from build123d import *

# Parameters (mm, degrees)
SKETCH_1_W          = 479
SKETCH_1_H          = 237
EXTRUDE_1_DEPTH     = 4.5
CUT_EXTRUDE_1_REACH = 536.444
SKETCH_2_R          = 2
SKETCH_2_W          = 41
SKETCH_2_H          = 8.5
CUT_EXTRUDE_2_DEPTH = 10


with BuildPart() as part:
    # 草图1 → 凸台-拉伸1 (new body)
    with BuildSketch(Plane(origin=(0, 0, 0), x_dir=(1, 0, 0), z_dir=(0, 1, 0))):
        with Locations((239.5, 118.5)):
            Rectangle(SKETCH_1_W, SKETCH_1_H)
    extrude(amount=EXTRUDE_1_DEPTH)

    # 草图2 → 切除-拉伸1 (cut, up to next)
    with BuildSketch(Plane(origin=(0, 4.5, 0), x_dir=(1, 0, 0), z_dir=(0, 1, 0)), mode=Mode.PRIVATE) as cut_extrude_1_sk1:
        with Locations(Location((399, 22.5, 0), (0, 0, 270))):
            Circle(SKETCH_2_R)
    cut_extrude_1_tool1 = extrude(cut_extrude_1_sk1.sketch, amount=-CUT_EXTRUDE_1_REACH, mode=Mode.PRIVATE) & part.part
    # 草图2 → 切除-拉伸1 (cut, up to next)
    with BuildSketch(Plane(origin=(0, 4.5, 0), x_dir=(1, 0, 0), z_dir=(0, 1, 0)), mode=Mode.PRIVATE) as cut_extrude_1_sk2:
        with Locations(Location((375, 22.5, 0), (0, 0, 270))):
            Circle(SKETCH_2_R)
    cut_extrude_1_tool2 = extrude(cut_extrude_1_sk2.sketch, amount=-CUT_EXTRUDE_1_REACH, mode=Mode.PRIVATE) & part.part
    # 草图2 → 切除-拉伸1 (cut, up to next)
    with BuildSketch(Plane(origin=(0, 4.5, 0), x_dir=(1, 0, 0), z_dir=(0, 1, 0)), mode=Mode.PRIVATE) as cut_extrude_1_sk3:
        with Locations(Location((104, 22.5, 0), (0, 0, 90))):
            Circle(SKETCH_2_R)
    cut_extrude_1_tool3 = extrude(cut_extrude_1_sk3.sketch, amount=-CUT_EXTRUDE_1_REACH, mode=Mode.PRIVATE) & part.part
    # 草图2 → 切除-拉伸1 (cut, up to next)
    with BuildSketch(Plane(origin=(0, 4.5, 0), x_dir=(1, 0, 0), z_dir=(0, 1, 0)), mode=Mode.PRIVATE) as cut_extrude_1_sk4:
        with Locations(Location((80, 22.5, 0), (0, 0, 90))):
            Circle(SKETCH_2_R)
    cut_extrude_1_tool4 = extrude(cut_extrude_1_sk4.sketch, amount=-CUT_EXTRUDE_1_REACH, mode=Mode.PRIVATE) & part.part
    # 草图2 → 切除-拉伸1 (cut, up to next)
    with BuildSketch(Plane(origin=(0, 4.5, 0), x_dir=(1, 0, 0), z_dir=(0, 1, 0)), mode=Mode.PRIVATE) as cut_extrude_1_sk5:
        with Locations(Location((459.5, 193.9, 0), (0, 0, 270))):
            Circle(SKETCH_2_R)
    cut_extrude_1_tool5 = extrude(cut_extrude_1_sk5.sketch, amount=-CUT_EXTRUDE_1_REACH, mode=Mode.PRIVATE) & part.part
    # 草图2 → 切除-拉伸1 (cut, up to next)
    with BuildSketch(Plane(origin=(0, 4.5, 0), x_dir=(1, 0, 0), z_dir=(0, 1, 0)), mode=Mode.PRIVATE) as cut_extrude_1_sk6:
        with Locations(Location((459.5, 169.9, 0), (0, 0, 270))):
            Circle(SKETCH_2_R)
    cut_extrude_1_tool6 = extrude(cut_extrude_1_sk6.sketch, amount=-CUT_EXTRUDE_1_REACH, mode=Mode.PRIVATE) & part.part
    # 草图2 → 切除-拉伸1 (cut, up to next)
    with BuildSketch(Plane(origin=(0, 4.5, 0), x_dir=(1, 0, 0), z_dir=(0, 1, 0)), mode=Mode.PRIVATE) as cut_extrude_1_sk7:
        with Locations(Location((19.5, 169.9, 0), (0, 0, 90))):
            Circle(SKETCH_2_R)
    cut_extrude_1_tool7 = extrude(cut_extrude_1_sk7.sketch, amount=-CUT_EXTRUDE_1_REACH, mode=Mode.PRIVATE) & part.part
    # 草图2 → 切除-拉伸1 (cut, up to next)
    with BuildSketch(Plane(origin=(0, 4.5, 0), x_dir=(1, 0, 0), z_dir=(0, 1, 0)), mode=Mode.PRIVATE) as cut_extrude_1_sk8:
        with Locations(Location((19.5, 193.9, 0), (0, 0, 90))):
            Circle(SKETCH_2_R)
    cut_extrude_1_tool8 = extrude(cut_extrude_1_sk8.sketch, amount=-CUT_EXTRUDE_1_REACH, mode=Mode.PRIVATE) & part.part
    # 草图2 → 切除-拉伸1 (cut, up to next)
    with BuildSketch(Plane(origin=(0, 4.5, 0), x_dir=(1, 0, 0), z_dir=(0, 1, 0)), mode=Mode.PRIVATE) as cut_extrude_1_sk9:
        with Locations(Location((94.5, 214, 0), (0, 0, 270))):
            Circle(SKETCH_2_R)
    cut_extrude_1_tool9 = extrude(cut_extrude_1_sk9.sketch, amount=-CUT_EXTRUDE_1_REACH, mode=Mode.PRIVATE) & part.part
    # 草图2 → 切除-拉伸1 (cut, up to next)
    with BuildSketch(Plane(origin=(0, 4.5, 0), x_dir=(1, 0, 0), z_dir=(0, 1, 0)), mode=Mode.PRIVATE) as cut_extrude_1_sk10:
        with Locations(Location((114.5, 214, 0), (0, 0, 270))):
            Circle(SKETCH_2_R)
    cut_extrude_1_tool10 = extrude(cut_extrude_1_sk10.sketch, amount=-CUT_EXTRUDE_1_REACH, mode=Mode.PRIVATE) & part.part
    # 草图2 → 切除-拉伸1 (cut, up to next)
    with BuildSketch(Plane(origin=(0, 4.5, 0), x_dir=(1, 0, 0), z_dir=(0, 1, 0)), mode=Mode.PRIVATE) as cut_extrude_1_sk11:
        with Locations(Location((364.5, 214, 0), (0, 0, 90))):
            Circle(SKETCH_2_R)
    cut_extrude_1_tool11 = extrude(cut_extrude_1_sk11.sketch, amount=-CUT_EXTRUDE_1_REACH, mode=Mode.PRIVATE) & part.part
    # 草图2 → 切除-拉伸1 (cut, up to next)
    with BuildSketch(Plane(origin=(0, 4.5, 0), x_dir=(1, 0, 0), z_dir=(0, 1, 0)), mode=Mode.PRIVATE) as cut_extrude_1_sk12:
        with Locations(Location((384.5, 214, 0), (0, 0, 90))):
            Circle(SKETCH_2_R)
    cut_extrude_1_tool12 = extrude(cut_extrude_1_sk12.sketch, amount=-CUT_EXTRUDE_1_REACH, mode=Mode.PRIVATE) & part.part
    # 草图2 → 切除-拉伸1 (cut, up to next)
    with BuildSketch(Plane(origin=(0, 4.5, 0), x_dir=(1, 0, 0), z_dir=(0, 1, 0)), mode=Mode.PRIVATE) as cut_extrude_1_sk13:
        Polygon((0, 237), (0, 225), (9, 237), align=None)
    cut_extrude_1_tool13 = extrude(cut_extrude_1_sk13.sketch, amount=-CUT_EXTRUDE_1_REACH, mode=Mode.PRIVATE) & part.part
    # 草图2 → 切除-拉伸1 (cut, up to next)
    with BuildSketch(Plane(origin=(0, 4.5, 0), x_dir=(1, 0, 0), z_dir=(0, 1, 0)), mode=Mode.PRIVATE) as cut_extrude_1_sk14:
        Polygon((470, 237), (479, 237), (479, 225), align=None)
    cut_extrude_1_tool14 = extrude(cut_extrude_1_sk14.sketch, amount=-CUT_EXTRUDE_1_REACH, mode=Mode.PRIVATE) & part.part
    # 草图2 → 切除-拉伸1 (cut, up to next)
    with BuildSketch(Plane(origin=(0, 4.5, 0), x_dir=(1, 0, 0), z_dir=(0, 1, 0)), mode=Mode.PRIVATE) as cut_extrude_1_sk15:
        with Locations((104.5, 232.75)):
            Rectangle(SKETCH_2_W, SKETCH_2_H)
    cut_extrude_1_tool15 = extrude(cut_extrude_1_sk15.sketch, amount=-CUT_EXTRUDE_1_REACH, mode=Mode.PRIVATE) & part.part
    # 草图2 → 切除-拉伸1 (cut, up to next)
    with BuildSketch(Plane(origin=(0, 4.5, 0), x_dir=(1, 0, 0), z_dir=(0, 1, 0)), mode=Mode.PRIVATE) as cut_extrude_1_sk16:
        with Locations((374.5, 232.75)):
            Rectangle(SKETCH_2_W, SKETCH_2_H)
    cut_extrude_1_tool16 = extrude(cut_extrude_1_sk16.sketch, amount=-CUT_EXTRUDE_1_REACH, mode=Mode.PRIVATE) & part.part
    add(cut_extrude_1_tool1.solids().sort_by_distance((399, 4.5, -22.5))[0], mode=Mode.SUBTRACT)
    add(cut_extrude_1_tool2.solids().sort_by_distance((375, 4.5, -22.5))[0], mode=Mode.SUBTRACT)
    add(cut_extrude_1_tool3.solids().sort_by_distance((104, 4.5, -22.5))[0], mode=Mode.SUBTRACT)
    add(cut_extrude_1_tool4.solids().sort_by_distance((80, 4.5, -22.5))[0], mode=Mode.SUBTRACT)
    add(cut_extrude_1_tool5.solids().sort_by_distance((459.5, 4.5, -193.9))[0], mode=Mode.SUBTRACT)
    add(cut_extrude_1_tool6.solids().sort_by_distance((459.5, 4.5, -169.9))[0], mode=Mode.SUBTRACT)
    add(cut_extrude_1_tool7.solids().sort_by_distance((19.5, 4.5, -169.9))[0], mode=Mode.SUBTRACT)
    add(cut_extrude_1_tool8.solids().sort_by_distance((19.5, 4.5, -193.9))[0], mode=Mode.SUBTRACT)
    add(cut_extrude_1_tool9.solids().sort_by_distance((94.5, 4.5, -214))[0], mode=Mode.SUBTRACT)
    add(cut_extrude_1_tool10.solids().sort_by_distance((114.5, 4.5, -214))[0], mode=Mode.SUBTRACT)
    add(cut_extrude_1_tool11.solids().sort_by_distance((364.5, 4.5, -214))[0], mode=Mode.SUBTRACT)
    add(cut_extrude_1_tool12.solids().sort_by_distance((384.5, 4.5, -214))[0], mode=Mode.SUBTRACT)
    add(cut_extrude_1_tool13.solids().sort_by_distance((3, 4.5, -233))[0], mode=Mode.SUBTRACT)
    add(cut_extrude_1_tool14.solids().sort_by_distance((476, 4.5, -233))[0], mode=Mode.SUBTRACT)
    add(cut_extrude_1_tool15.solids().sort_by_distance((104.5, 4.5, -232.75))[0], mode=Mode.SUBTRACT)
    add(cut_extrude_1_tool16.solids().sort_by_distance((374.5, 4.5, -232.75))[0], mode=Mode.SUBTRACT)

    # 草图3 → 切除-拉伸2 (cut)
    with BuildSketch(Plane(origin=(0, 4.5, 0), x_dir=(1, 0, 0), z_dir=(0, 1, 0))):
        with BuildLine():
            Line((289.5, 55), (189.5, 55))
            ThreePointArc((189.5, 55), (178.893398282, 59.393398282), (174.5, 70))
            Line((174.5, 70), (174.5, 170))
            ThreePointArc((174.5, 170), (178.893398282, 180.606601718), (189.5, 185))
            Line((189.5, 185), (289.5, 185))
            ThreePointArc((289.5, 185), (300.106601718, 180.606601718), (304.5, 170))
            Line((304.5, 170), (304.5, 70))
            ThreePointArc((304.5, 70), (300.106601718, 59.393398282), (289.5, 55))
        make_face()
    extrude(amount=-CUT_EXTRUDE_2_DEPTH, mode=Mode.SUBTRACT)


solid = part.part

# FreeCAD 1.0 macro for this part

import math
import FreeCAD as App
import Part
import Sketcher


def add_polygon(sketch, points):
    """Adds a closed chain of lines whose ends are joined by coincident constraints."""
    first, n = sketch.GeometryCount, len(points)
    for a, b in zip(points, points[1:] + points[:1]):
        sketch.addGeometry(Part.LineSegment(App.Vector(*a, 0), App.Vector(*b, 0)), False)
    for i in range(n):
        sketch.addConstraint(Sketcher.Constraint("Coincident", first + i, 2, first + (i + 1) % n, 1))

doc = App.newDocument("Part")
body = doc.addObject("PartDesign::Body", "Body")

sketch1 = body.newObject("Sketcher::SketchObject", "Sketch")
sketch1.AttachmentSupport = (doc.getObject("XZ_Plane"), [""])
sketch1.MapMode = "FlatFace"
add_polygon(sketch1, [(0, -237), (0, 0), (479, 0), (479, -237)])
sketch1.addConstraint(Sketcher.Constraint("Vertical", 0))
sketch1.addConstraint(Sketcher.Constraint("Horizontal", 1))
sketch1.addConstraint(Sketcher.Constraint("Vertical", 2))
sketch1.addConstraint(Sketcher.Constraint("Horizontal", 3))
sketch1.addConstraint(Sketcher.Constraint("Coincident", 0, 2, -1, 1))
sketch1.addConstraint(Sketcher.Constraint("DistanceX", 1, 1, 1, 2, 479.0))
sketch1.addConstraint(Sketcher.Constraint("DistanceY", 0, 1, 0, 2, 237.0))
pad1 = body.newObject("PartDesign::Pad", "Pad")
pad1.Profile = sketch1
pad1.Length = 4.5
pad1.Reversed = True

sketch2 = body.newObject("Sketcher::SketchObject", "Sketch001")
sketch2.AttachmentSupport = (doc.getObject("XZ_Plane"), [""])
sketch2.MapMode = "FlatFace"
sketch2.AttachmentOffset = App.Placement(App.Vector(0, 0, -4.5), App.Rotation())
sketch2.addGeometry(Part.Circle(App.Vector(399, -22.5, 0), App.Vector(0, 0, 1), 2), False)
sketch2.addConstraint(Sketcher.Constraint("Diameter", 0, 4.0))
sketch2.addConstraint(Sketcher.Constraint("DistanceX", -1, 1, 0, 3, 399.0))
sketch2.addConstraint(Sketcher.Constraint("DistanceY", 0, 3, -1, 1, 22.5))
pocket1 = body.newObject("PartDesign::Pocket", "Pocket")
pocket1.Profile = sketch2
pocket1.Type = "UpToFirst"
pocket1.Reversed = True

sketch3 = body.newObject("Sketcher::SketchObject", "Sketch002")
sketch3.AttachmentSupport = (doc.getObject("XZ_Plane"), [""])
sketch3.MapMode = "FlatFace"
sketch3.AttachmentOffset = App.Placement(App.Vector(0, 0, -4.5), App.Rotation())
sketch3.addGeometry(Part.Circle(App.Vector(375, -22.5, 0), App.Vector(0, 0, 1), 2), False)
sketch3.addConstraint(Sketcher.Constraint("Diameter", 0, 4.0))
sketch3.addConstraint(Sketcher.Constraint("DistanceX", -1, 1, 0, 3, 375.0))
sketch3.addConstraint(Sketcher.Constraint("DistanceY", 0, 3, -1, 1, 22.5))
pocket2 = body.newObject("PartDesign::Pocket", "Pocket001")
pocket2.Profile = sketch3
pocket2.Type = "UpToFirst"
pocket2.Reversed = True

sketch4 = body.newObject("Sketcher::SketchObject", "Sketch003")
sketch4.AttachmentSupport = (doc.getObject("XZ_Plane"), [""])
sketch4.MapMode = "FlatFace"
sketch4.AttachmentOffset = App.Placement(App.Vector(0, 0, -4.5), App.Rotation())
sketch4.addGeometry(Part.Circle(App.Vector(104, -22.5, 0), App.Vector(0, 0, 1), 2), False)
sketch4.addConstraint(Sketcher.Constraint("Diameter", 0, 4.0))
sketch4.addConstraint(Sketcher.Constraint("DistanceX", -1, 1, 0, 3, 104.0))
sketch4.addConstraint(Sketcher.Constraint("DistanceY", 0, 3, -1, 1, 22.5))
pocket3 = body.newObject("PartDesign::Pocket", "Pocket002")
pocket3.Profile = sketch4
pocket3.Type = "UpToFirst"
pocket3.Reversed = True

sketch5 = body.newObject("Sketcher::SketchObject", "Sketch004")
sketch5.AttachmentSupport = (doc.getObject("XZ_Plane"), [""])
sketch5.MapMode = "FlatFace"
sketch5.AttachmentOffset = App.Placement(App.Vector(0, 0, -4.5), App.Rotation())
sketch5.addGeometry(Part.Circle(App.Vector(80, -22.5, 0), App.Vector(0, 0, 1), 2), False)
sketch5.addConstraint(Sketcher.Constraint("Diameter", 0, 4.0))
sketch5.addConstraint(Sketcher.Constraint("DistanceX", -1, 1, 0, 3, 80.0))
sketch5.addConstraint(Sketcher.Constraint("DistanceY", 0, 3, -1, 1, 22.5))
pocket4 = body.newObject("PartDesign::Pocket", "Pocket003")
pocket4.Profile = sketch5
pocket4.Type = "UpToFirst"
pocket4.Reversed = True

sketch6 = body.newObject("Sketcher::SketchObject", "Sketch005")
sketch6.AttachmentSupport = (doc.getObject("XZ_Plane"), [""])
sketch6.MapMode = "FlatFace"
sketch6.AttachmentOffset = App.Placement(App.Vector(0, 0, -4.5), App.Rotation())
sketch6.addGeometry(Part.Circle(App.Vector(459.5, -193.9, 0), App.Vector(0, 0, 1), 2), False)
sketch6.addConstraint(Sketcher.Constraint("Diameter", 0, 4.0))
sketch6.addConstraint(Sketcher.Constraint("DistanceX", -1, 1, 0, 3, 459.5))
sketch6.addConstraint(Sketcher.Constraint("DistanceY", 0, 3, -1, 1, 193.9))
pocket5 = body.newObject("PartDesign::Pocket", "Pocket004")
pocket5.Profile = sketch6
pocket5.Type = "UpToFirst"
pocket5.Reversed = True

sketch7 = body.newObject("Sketcher::SketchObject", "Sketch006")
sketch7.AttachmentSupport = (doc.getObject("XZ_Plane"), [""])
sketch7.MapMode = "FlatFace"
sketch7.AttachmentOffset = App.Placement(App.Vector(0, 0, -4.5), App.Rotation())
sketch7.addGeometry(Part.Circle(App.Vector(459.5, -169.9, 0), App.Vector(0, 0, 1), 2), False)
sketch7.addConstraint(Sketcher.Constraint("Diameter", 0, 4.0))
sketch7.addConstraint(Sketcher.Constraint("DistanceX", -1, 1, 0, 3, 459.5))
sketch7.addConstraint(Sketcher.Constraint("DistanceY", 0, 3, -1, 1, 169.9))
pocket6 = body.newObject("PartDesign::Pocket", "Pocket005")
pocket6.Profile = sketch7
pocket6.Type = "UpToFirst"
pocket6.Reversed = True

sketch8 = body.newObject("Sketcher::SketchObject", "Sketch007")
sketch8.AttachmentSupport = (doc.getObject("XZ_Plane"), [""])
sketch8.MapMode = "FlatFace"
sketch8.AttachmentOffset = App.Placement(App.Vector(0, 0, -4.5), App.Rotation())
sketch8.addGeometry(Part.Circle(App.Vector(19.5, -169.9, 0), App.Vector(0, 0, 1), 2), False)
sketch8.addConstraint(Sketcher.Constraint("Diameter", 0, 4.0))
sketch8.addConstraint(Sketcher.Constraint("DistanceX", -1, 1, 0, 3, 19.5))
sketch8.addConstraint(Sketcher.Constraint("DistanceY", 0, 3, -1, 1, 169.9))
pocket7 = body.newObject("PartDesign::Pocket", "Pocket006")
pocket7.Profile = sketch8
pocket7.Type = "UpToFirst"
pocket7.Reversed = True

sketch9 = body.newObject("Sketcher::SketchObject", "Sketch008")
sketch9.AttachmentSupport = (doc.getObject("XZ_Plane"), [""])
sketch9.MapMode = "FlatFace"
sketch9.AttachmentOffset = App.Placement(App.Vector(0, 0, -4.5), App.Rotation())
sketch9.addGeometry(Part.Circle(App.Vector(19.5, -193.9, 0), App.Vector(0, 0, 1), 2), False)
sketch9.addConstraint(Sketcher.Constraint("Diameter", 0, 4.0))
sketch9.addConstraint(Sketcher.Constraint("DistanceX", -1, 1, 0, 3, 19.5))
sketch9.addConstraint(Sketcher.Constraint("DistanceY", 0, 3, -1, 1, 193.9))
pocket8 = body.newObject("PartDesign::Pocket", "Pocket007")
pocket8.Profile = sketch9
pocket8.Type = "UpToFirst"
pocket8.Reversed = True

sketch10 = body.newObject("Sketcher::SketchObject", "Sketch009")
sketch10.AttachmentSupport = (doc.getObject("XZ_Plane"), [""])
sketch10.MapMode = "FlatFace"
sketch10.AttachmentOffset = App.Placement(App.Vector(0, 0, -4.5), App.Rotation())
sketch10.addGeometry(Part.Circle(App.Vector(94.5, -214, 0), App.Vector(0, 0, 1), 2), False)
sketch10.addConstraint(Sketcher.Constraint("Diameter", 0, 4.0))
sketch10.addConstraint(Sketcher.Constraint("DistanceY", 0, 3, -1, 1, 214.0))
sketch10.addConstraint(Sketcher.Constraint("DistanceX", -1, 1, 0, 3, 94.5))
pocket9 = body.newObject("PartDesign::Pocket", "Pocket008")
pocket9.Profile = sketch10
pocket9.Type = "UpToFirst"
pocket9.Reversed = True

sketch11 = body.newObject("Sketcher::SketchObject", "Sketch010")
sketch11.AttachmentSupport = (doc.getObject("XZ_Plane"), [""])
sketch11.MapMode = "FlatFace"
sketch11.AttachmentOffset = App.Placement(App.Vector(0, 0, -4.5), App.Rotation())
sketch11.addGeometry(Part.Circle(App.Vector(114.5, -214, 0), App.Vector(0, 0, 1), 2), False)
sketch11.addConstraint(Sketcher.Constraint("Diameter", 0, 4.0))
sketch11.addConstraint(Sketcher.Constraint("DistanceY", 0, 3, -1, 1, 214.0))
sketch11.addConstraint(Sketcher.Constraint("DistanceX", -1, 1, 0, 3, 114.5))
pocket10 = body.newObject("PartDesign::Pocket", "Pocket009")
pocket10.Profile = sketch11
pocket10.Type = "UpToFirst"
pocket10.Reversed = True

sketch12 = body.newObject("Sketcher::SketchObject", "Sketch011")
sketch12.AttachmentSupport = (doc.getObject("XZ_Plane"), [""])
sketch12.MapMode = "FlatFace"
sketch12.AttachmentOffset = App.Placement(App.Vector(0, 0, -4.5), App.Rotation())
sketch12.addGeometry(Part.Circle(App.Vector(364.5, -214, 0), App.Vector(0, 0, 1), 2), False)
sketch12.addConstraint(Sketcher.Constraint("Diameter", 0, 4.0))
sketch12.addConstraint(Sketcher.Constraint("DistanceY", 0, 3, -1, 1, 214.0))
sketch12.addConstraint(Sketcher.Constraint("DistanceX", -1, 1, 0, 3, 364.5))
pocket11 = body.newObject("PartDesign::Pocket", "Pocket010")
pocket11.Profile = sketch12
pocket11.Type = "UpToFirst"
pocket11.Reversed = True

sketch13 = body.newObject("Sketcher::SketchObject", "Sketch012")
sketch13.AttachmentSupport = (doc.getObject("XZ_Plane"), [""])
sketch13.MapMode = "FlatFace"
sketch13.AttachmentOffset = App.Placement(App.Vector(0, 0, -4.5), App.Rotation())
sketch13.addGeometry(Part.Circle(App.Vector(384.5, -214, 0), App.Vector(0, 0, 1), 2), False)
sketch13.addConstraint(Sketcher.Constraint("Diameter", 0, 4.0))
sketch13.addConstraint(Sketcher.Constraint("DistanceY", 0, 3, -1, 1, 214.0))
sketch13.addConstraint(Sketcher.Constraint("DistanceX", -1, 1, 0, 3, 384.5))
pocket12 = body.newObject("PartDesign::Pocket", "Pocket011")
pocket12.Profile = sketch13
pocket12.Type = "UpToFirst"
pocket12.Reversed = True

sketch14 = body.newObject("Sketcher::SketchObject", "Sketch013")
sketch14.AttachmentSupport = (doc.getObject("XZ_Plane"), [""])
sketch14.MapMode = "FlatFace"
sketch14.AttachmentOffset = App.Placement(App.Vector(0, 0, -4.5), App.Rotation())
add_polygon(sketch14, [(0, -237), (0, -225), (9, -237)])
sketch14.addConstraint(Sketcher.Constraint("Vertical", 0))
sketch14.addConstraint(Sketcher.Constraint("Horizontal", 2))
sketch14.addConstraint(Sketcher.Constraint("PointOnObject", 0, 2, -2))
sketch14.addConstraint(Sketcher.Constraint("DistanceX", 2, 2, 2, 1, 9.0))
sketch14.addConstraint(Sketcher.Constraint("DistanceY", 0, 1, 0, 2, 12.0))
sketch14.addConstraint(Sketcher.Constraint("DistanceY", 0, 2, -1, 1, 225.0))
pocket13 = body.newObject("PartDesign::Pocket", "Pocket012")
pocket13.Profile = sketch14
pocket13.Type = "UpToFirst"
pocket13.Reversed = True

sketch15 = body.newObject("Sketcher::SketchObject", "Sketch014")
sketch15.AttachmentSupport = (doc.getObject("XZ_Plane"), [""])
sketch15.MapMode = "FlatFace"
sketch15.AttachmentOffset = App.Placement(App.Vector(0, 0, -4.5), App.Rotation())
add_polygon(sketch15, [(479, -237), (470, -237), (479, -225)])
sketch15.addConstraint(Sketcher.Constraint("Horizontal", 0))
sketch15.addConstraint(Sketcher.Constraint("Vertical", 2))
sketch15.addConstraint(Sketcher.Constraint("DistanceX", 0, 2, 0, 1, 9.0))
sketch15.addConstraint(Sketcher.Constraint("DistanceY", 2, 2, 2, 1, 12.0))
sketch15.addConstraint(Sketcher.Constraint("DistanceX", -1, 1, 0, 2, 470.0))
sketch15.addConstraint(Sketcher.Constraint("DistanceY", 0, 2, -1, 1, 237.0))
pocket14 = body.newObject("PartDesign::Pocket", "Pocket013")
pocket14.Profile = sketch15
pocket14.Type = "UpToFirst"
pocket14.Reversed = True

sketch16 = body.newObject("Sketcher::SketchObject", "Sketch015")
sketch16.AttachmentSupport = (doc.getObject("XZ_Plane"), [""])
sketch16.MapMode = "FlatFace"
sketch16.AttachmentOffset = App.Placement(App.Vector(0, 0, -4.5), App.Rotation())
add_polygon(sketch16, [(84, -237), (84, -228), (125, -228), (125, -237)])
sketch16.addConstraint(Sketcher.Constraint("Vertical", 0))
sketch16.addConstraint(Sketcher.Constraint("Horizontal", 1))
sketch16.addConstraint(Sketcher.Constraint("Vertical", 2))
sketch16.addConstraint(Sketcher.Constraint("Horizontal", 3))
sketch16.addConstraint(Sketcher.Constraint("DistanceX", 1, 1, 1, 2, 41.0))
sketch16.addConstraint(Sketcher.Constraint("DistanceY", 0, 1, 0, 2, 8.5))
sketch16.addConstraint(Sketcher.Constraint("DistanceX", -1, 1, 0, 2, 84.0))
sketch16.addConstraint(Sketcher.Constraint("DistanceY", 2, 2, -1, 1, 237.0))
pocket15 = body.newObject("PartDesign::Pocket", "Pocket014")
pocket15.Profile = sketch16
pocket15.Type = "UpToFirst"
pocket15.Reversed = True

sketch17 = body.newObject("Sketcher::SketchObject", "Sketch016")
sketch17.AttachmentSupport = (doc.getObject("XZ_Plane"), [""])
sketch17.MapMode = "FlatFace"
sketch17.AttachmentOffset = App.Placement(App.Vector(0, 0, -4.5), App.Rotation())
add_polygon(sketch17, [(354, -237), (354, -228), (395, -228), (395, -237)])
sketch17.addConstraint(Sketcher.Constraint("Vertical", 0))
sketch17.addConstraint(Sketcher.Constraint("Horizontal", 1))
sketch17.addConstraint(Sketcher.Constraint("Vertical", 2))
sketch17.addConstraint(Sketcher.Constraint("Horizontal", 3))
sketch17.addConstraint(Sketcher.Constraint("DistanceX", 1, 1, 1, 2, 41.0))
sketch17.addConstraint(Sketcher.Constraint("DistanceY", 0, 1, 0, 2, 8.5))
sketch17.addConstraint(Sketcher.Constraint("DistanceX", -1, 1, 0, 2, 354.0))
sketch17.addConstraint(Sketcher.Constraint("DistanceY", 2, 2, -1, 1, 237.0))
pocket16 = body.newObject("PartDesign::Pocket", "Pocket015")
pocket16.Profile = sketch17
pocket16.Type = "UpToFirst"
pocket16.Reversed = True

sketch18 = body.newObject("Sketcher::SketchObject", "Sketch017")
sketch18.AttachmentSupport = (doc.getObject("XZ_Plane"), [""])
sketch18.MapMode = "FlatFace"
sketch18.AttachmentOffset = App.Placement(App.Vector(0, 0, -4.5), App.Rotation())
sketch18.addGeometry(Part.LineSegment(App.Vector(190, -55, 0), App.Vector(290, -55, 0)), False)
sketch18.addGeometry(Part.ArcOfCircle(Part.Circle(App.Vector(290, -70, 0), App.Vector(0, 0, 1), 15), math.radians(0), math.radians(90)), False)
sketch18.addGeometry(Part.LineSegment(App.Vector(304, -70, 0), App.Vector(304, -170, 0)), False)
sketch18.addGeometry(Part.ArcOfCircle(Part.Circle(App.Vector(290, -170, 0), App.Vector(0, 0, 1), 15), math.radians(-90), math.radians(0)), False)
sketch18.addGeometry(Part.LineSegment(App.Vector(290, -185, 0), App.Vector(190, -185, 0)), False)
sketch18.addGeometry(Part.ArcOfCircle(Part.Circle(App.Vector(189, -170, 0), App.Vector(0, 0, 1), 15), math.radians(180), math.radians(270)), False)
sketch18.addGeometry(Part.LineSegment(App.Vector(174, -170, 0), App.Vector(174, -70, 0)), False)
sketch18.addGeometry(Part.ArcOfCircle(Part.Circle(App.Vector(189, -70, 0), App.Vector(0, 0, 1), 15), math.radians(90), math.radians(180)), False)
sketch18.addConstraint(Sketcher.Constraint("Tangent", 0, 2, 1, 2))
sketch18.addConstraint(Sketcher.Constraint("Tangent", 1, 1, 2, 1))
sketch18.addConstraint(Sketcher.Constraint("Tangent", 2, 2, 3, 2))
sketch18.addConstraint(Sketcher.Constraint("Tangent", 3, 1, 4, 1))
sketch18.addConstraint(Sketcher.Constraint("Tangent", 4, 2, 5, 2))
sketch18.addConstraint(Sketcher.Constraint("Tangent", 5, 1, 6, 1))
sketch18.addConstraint(Sketcher.Constraint("Tangent", 6, 2, 7, 2))
sketch18.addConstraint(Sketcher.Constraint("Tangent", 7, 1, 0, 1))
sketch18.addConstraint(Sketcher.Constraint("Horizontal", 0))
sketch18.addConstraint(Sketcher.Constraint("Vertical", 2))
sketch18.addConstraint(Sketcher.Constraint("Horizontal", 4))
sketch18.addConstraint(Sketcher.Constraint("Vertical", 6))
sketch18.addConstraint(Sketcher.Constraint("Equal", 1, 3))
sketch18.addConstraint(Sketcher.Constraint("Equal", 3, 5))
sketch18.addConstraint(Sketcher.Constraint("Equal", 5, 7))
sketch18.addConstraint(Sketcher.Constraint("Equal", 4, 2))
sketch18.addConstraint(Sketcher.Constraint("Radius", 1, 15.0))
sketch18.addConstraint(Sketcher.Constraint("DistanceX", 0, 1, 0, 2, 100.0))
sketch18.addConstraint(Sketcher.Constraint("DistanceY", 1, 3, -1, 1, 70.0))
sketch18.addConstraint(Sketcher.Constraint("DistanceX", -1, 1, 1, 3, 289.5))
pocket17 = body.newObject("PartDesign::Pocket", "Pocket016")
pocket17.Profile = sketch18
pocket17.Length = 10
pocket17.Reversed = True

doc.recompute()
